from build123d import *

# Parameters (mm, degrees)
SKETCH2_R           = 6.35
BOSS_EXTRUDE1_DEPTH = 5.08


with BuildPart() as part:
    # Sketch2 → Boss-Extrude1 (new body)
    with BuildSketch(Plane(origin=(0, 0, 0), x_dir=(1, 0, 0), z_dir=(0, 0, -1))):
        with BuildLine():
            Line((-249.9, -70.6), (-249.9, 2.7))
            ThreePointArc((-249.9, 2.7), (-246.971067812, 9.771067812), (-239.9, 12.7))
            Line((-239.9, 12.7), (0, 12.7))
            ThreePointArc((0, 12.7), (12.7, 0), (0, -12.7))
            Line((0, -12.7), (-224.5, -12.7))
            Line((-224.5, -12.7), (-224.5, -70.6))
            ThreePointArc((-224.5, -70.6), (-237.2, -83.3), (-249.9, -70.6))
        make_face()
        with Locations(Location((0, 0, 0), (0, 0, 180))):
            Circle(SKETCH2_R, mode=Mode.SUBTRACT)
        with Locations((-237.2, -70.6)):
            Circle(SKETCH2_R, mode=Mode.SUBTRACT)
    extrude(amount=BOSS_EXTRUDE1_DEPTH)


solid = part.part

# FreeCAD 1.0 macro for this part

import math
import FreeCAD as App
import Part
import Sketcher
Q = App.Units.Quantity

doc = App.newDocument("Part")
body = doc.addObject("PartDesign::Body", "Body")

sketch1 = doc.addObject("Sketcher::SketchObject", "Sketch")
body.addObject(sketch1)
sketch1.AttachmentSupport = (doc.XY_Plane, [""])
sketch1.MapMode = "FlatFace"
sketch1.addGeometry(Part.LineSegment(App.Vector(-249.9, -2.7, 0), App.Vector(-249.9, 70.6, 0)), False)
sketch1.addGeometry(Part.ArcOfCircle(Part.Circle(App.Vector(-237.2, 70.6, 0), App.Vector(0, 0, 1), 12.7), math.radians(0), math.radians(180)), False)
sketch1.addGeometry(Part.LineSegment(App.Vector(-224.5, 70.6, 0), App.Vector(-224.5, 12.7, 0)), False)
sketch1.addGeometry(Part.LineSegment(App.Vector(-224.5, 12.7, 0), App.Vector(0, 12.7, 0)), False)
sketch1.addGeometry(Part.ArcOfCircle(Part.Circle(App.Vector(0, 0, 0), App.Vector(0, 0, 1), 12.7), math.radians(-90), math.radians(90)), False)
sketch1.addGeometry(Part.LineSegment(App.Vector(0, -12.7, 0), App.Vector(-239.9, -12.7, 0)), False)
sketch1.addGeometry(Part.ArcOfCircle(Part.Circle(App.Vector(-239.9, -2.7, 0), App.Vector(0, 0, 1), 10), math.radians(180), math.radians(270)), False)
sketch1.addGeometry(Part.Circle(App.Vector(-237.2, 70.6, 0), App.Vector(0, 0, 1), 6.35), False)
sketch1.addGeometry(Part.Circle(App.Vector(0, 0, 0), App.Vector(0, 0, 1), 6.35), False)
sketch1.addConstraint(Sketcher.Constraint("Tangent", 0, 2, 1, 2))
sketch1.addConstraint(Sketcher.Constraint("Tangent", 1, 1, 2, 1))
sketch1.addConstraint(Sketcher.Constraint("Coincident", 2, 2, 3, 1))
sketch1.addConstraint(Sketcher.Constraint("Tangent", 3, 2, 4, 2))
sketch1.addConstraint(Sketcher.Constraint("Tangent", 4, 1, 5, 1))
sketch1.addConstraint(Sketcher.Constraint("Tangent", 5, 2, 6, 2))
sketch1.addConstraint(Sketcher.Constraint("Tangent", 6, 1, 0, 1))
sketch1.addConstraint(Sketcher.Constraint("Vertical", 0))
sketch1.addConstraint(Sketcher.Constraint("Vertical", 2))
sketch1.addConstraint(Sketcher.Constraint("Horizontal", 3))
sketch1.addConstraint(Sketcher.Constraint("Horizontal", 5))
sketch1.addConstraint(Sketcher.Constraint("Coincident", 4, 3, -1, 1))
sketch1.addConstraint(Sketcher.Constraint("Coincident", 8, 3, -1, 1))
sketch1.addConstraint(Sketcher.Constraint("Coincident", 7, 3, 1, 3))
sketch1.addConstraint(Sketcher.Constraint("Equal", 1, 4))
sketch1.addConstraint(Sketcher.Constraint("Equal", 7, 8))
sketch1.addConstraint(Sketcher.Constraint("Radius", 6, Q("10 mm")))
sketch1.addConstraint(Sketcher.Constraint("Diameter", 7, Q("12.7 mm")))
sketch1.addConstraint(Sketcher.Constraint("Radius", 1, Q("12.7 mm")))
sketch1.addConstraint(Sketcher.Constraint("DistanceX", 3, 1, 3, 2, Q("224.5 mm")))
sketch1.addConstraint(Sketcher.Constraint("DistanceY", 0, 1, 0, 2, Q("73.3 mm")))
pad1 = doc.addObject("PartDesign::Pad", "Pad")
body.addObject(pad1)
pad1.Profile = sketch1
pad1.Length = 5.08
pad1.Reversed = True

doc.recompute()
